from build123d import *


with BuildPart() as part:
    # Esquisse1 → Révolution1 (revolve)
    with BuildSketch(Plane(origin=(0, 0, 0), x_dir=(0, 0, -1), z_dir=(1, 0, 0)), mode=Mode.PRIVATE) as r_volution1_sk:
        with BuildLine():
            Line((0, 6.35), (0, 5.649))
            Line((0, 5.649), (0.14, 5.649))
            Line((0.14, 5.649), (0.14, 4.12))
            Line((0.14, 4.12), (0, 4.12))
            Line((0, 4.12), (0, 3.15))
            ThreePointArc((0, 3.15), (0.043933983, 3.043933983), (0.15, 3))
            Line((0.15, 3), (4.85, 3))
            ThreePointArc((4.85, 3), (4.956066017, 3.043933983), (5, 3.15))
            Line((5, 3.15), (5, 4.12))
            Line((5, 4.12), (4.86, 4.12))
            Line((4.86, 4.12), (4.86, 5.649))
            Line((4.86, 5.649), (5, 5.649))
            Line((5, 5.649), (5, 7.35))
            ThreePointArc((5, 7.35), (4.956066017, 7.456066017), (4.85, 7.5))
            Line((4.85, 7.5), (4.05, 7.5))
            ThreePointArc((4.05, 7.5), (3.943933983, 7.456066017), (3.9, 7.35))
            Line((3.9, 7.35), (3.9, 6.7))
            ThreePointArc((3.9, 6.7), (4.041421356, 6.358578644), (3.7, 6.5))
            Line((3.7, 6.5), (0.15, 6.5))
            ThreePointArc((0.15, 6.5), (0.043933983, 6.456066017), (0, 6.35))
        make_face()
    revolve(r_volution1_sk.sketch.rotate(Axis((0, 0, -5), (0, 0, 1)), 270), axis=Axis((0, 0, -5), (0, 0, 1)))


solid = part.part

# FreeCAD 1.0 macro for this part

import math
import FreeCAD as App
import Part
import Sketcher

doc = App.newDocument("Part")
params = doc.addObject("Spreadsheet::Sheet", "Params")
for row, (alias, value) in enumerate([
    ("sketch1_radius", "0.2 mm"),
    ("sketch1_radius2", "0.15 mm"),
    ("sketch1_height", "4.7 mm"),
    ("sketch1_height2", "0.8 mm"),
    ("sketch1_width", "0.97 mm"),
    ("revolution_angle", "360 deg"),
], start=1):
    params.set(f"A{row}", alias)
    params.set(f"B{row}", "=" + value)
    params.setAlias(f"B{row}", alias)

body = doc.addObject("PartDesign::Body", "Body")

# Sketch on YZ plane
sketch1 = doc.addObject("Sketcher::SketchObject", "Sketch")
body.addObject(sketch1)
sketch1.AttachmentSupport = (doc.YZ_Plane, [""])
sketch1.MapMode = "FlatFace"
sketch1.addGeometry(Part.LineSegment(App.Vector(6.35, 0, 0), App.Vector(5.65, 0, 0)), False)
sketch1.addGeometry(Part.LineSegment(App.Vector(5.65, 0, 0), App.Vector(5.65, -0.14, 0)), False)
sketch1.addGeometry(Part.LineSegment(App.Vector(5.65, -0.14, 0), App.Vector(4.12, -0.14, 0)), False)
sketch1.addGeometry(Part.LineSegment(App.Vector(4.12, -0.14, 0), App.Vector(4.12, 0, 0)), False)
sketch1.addGeometry(Part.LineSegment(App.Vector(4.12, 0, 0), App.Vector(3.15, 0, 0)), False)
sketch1.addGeometry(Part.ArcOfCircle(Part.Circle(App.Vector(3.15, -0.15, 0), App.Vector(0, 0, 1), 0.15), math.radians(90), math.radians(180)), False)
sketch1.addGeometry(Part.LineSegment(App.Vector(3, -0.15, 0), App.Vector(3, -4.85, 0)), False)
sketch1.addGeometry(Part.ArcOfCircle(Part.Circle(App.Vector(3.15, -4.85, 0), App.Vector(0, 0, 1), 0.15), math.radians(-180), math.radians(-90)), False)
sketch1.addGeometry(Part.LineSegment(App.Vector(3.15, -5, 0), App.Vector(4.12, -5, 0)), False)
sketch1.addGeometry(Part.LineSegment(App.Vector(4.12, -5, 0), App.Vector(4.12, -4.86, 0)), False)
sketch1.addGeometry(Part.LineSegment(App.Vector(4.12, -4.86, 0), App.Vector(5.65, -4.86, 0)), False)
sketch1.addGeometry(Part.LineSegment(App.Vector(5.65, -4.86, 0), App.Vector(5.65, -5, 0)), False)
sketch1.addGeometry(Part.LineSegment(App.Vector(5.65, -5, 0), App.Vector(7.35, -5, 0)), False)
sketch1.addGeometry(Part.ArcOfCircle(Part.Circle(App.Vector(7.35, -4.85, 0), App.Vector(0, 0, 1), 0.15), math.radians(-90), math.radians(0)), False)
sketch1.addGeometry(Part.LineSegment(App.Vector(7.5, -4.85, 0), App.Vector(7.5, -4.05, 0)), False)
sketch1.addGeometry(Part.ArcOfCircle(Part.Circle(App.Vector(7.35, -4.05, 0), App.Vector(0, 0, 1), 0.15), math.radians(0), math.radians(90)), False)
sketch1.addGeometry(Part.LineSegment(App.Vector(7.35, -3.9, 0), App.Vector(6.7, -3.9, 0)), False)
sketch1.addGeometry(Part.ArcOfCircle(Part.Circle(App.Vector(6.5, -3.9, 0), App.Vector(0, 0, 1), 0.2), math.radians(90), math.radians(360)), False)
sketch1.addGeometry(Part.LineSegment(App.Vector(6.5, -3.7, 0), App.Vector(6.5, -0.15, 0)), False)
sketch1.addGeometry(Part.ArcOfCircle(Part.Circle(App.Vector(6.35, -0.15, 0), App.Vector(0, 0, 1), 0.15), math.radians(0), math.radians(90)), False)
sketch1.addConstraint(Sketcher.Constraint("Coincident", 0, 2, 1, 1))
sketch1.addConstraint(Sketcher.Constraint("Coincident", 1, 2, 2, 1))
sketch1.addConstraint(Sketcher.Constraint("Coincident", 2, 2, 3, 1))
sketch1.addConstraint(Sketcher.Constraint("Coincident", 3, 2, 4, 1))
sketch1.addConstraint(Sketcher.Constraint("Tangent", 4, 2, 5, 1))
sketch1.addConstraint(Sketcher.Constraint("Tangent", 5, 2, 6, 1))
sketch1.addConstraint(Sketcher.Constraint("Tangent", 6, 2, 7, 1))
sketch1.addConstraint(Sketcher.Constraint("Tangent", 7, 2, 8, 1))
sketch1.addConstraint(Sketcher.Constraint("Coincident", 8, 2, 9, 1))
sketch1.addConstraint(Sketcher.Constraint("Coincident", 9, 2, 10, 1))
sketch1.addConstraint(Sketcher.Constraint("Coincident", 10, 2, 11, 1))
sketch1.addConstraint(Sketcher.Constraint("Coincident", 11, 2, 12, 1))
sketch1.addConstraint(Sketcher.Constraint("Tangent", 12, 2, 13, 1))
sketch1.addConstraint(Sketcher.Constraint("Tangent", 13, 2, 14, 1))
sketch1.addConstraint(Sketcher.Constraint("Tangent", 14, 2, 15, 1))
sketch1.addConstraint(Sketcher.Constraint("Tangent", 15, 2, 16, 1))
sketch1.addConstraint(Sketcher.Constraint("Coincident", 16, 2, 17, 2))
sketch1.addConstraint(Sketcher.Constraint("Coincident", 17, 1, 18, 1))
sketch1.addConstraint(Sketcher.Constraint("Tangent", 18, 2, 19, 1))
sketch1.addConstraint(Sketcher.Constraint("Tangent", 19, 2, 0, 1))
sketch1.addConstraint(Sketcher.Constraint("Horizontal", 0))
sketch1.addConstraint(Sketcher.Constraint("Vertical", 1))
sketch1.addConstraint(Sketcher.Constraint("Horizontal", 2))
sketch1.addConstraint(Sketcher.Constraint("Vertical", 3))
sketch1.addConstraint(Sketcher.Constraint("Horizontal", 4))
sketch1.addConstraint(Sketcher.Constraint("Vertical", 6))
sketch1.addConstraint(Sketcher.Constraint("Horizontal", 8))
sketch1.addConstraint(Sketcher.Constraint("Vertical", 9))
sketch1.addConstraint(Sketcher.Constraint("Horizontal", 10))
sketch1.addConstraint(Sketcher.Constraint("Vertical", 11))
sketch1.addConstraint(Sketcher.Constraint("Horizontal", 12))
sketch1.addConstraint(Sketcher.Constraint("Vertical", 14))
sketch1.addConstraint(Sketcher.Constraint("Horizontal", 16))
sketch1.addConstraint(Sketcher.Constraint("Vertical", 18))
sketch1.addConstraint(Sketcher.Constraint("Equal", 5, 7))
sketch1.addConstraint(Sketcher.Constraint("Equal", 7, 13))
sketch1.addConstraint(Sketcher.Constraint("Equal", 13, 15))
sketch1.addConstraint(Sketcher.Constraint("Equal", 15, 19))
sketch1.addConstraint(Sketcher.Constraint("PointOnObject", 0, 2, -1))
sketch1.addConstraint(Sketcher.Constraint("PointOnObject", 3, 2, -1))
sketch1.addConstraint(Sketcher.Constraint("Horizontal", 7, 3, 13, 3))
sketch1.addConstraint(Sketcher.Constraint("Horizontal", 17, 3, 15, 2))
sketch1.addConstraint(Sketcher.Constraint("Vertical", 3, 2, 8, 2))
sketch1.addConstraint(Sketcher.Constraint("Vertical", 1, 2, 10, 2))
sketch1.addConstraint(Sketcher.Constraint("Equal", 3, 9))
sketch1.addConstraint(Sketcher.Constraint("Radius", 17, 0.2))
sketch1.addConstraint(Sketcher.Constraint("Radius", 5, 0.15))
sketch1.addConstraint(Sketcher.Constraint("DistanceY", 6, 2, 6, 1, 4.7))
sketch1.addConstraint(Sketcher.Constraint("DistanceY", 14, 1, 14, 2, 0.8))
sketch1.addConstraint(Sketcher.Constraint("DistanceX", -1, 1, 5, 2, 3.0))
sketch1.addConstraint(Sketcher.Constraint("DistanceX", 19, 3, 15, 3, 1.0))
sketch1.addConstraint(Sketcher.Constraint("DistanceX", 17, 3, 13, 2, 1.0))
sketch1.addConstraint(Sketcher.Constraint("DistanceX", 4, 2, 4, 1, 0.97))
sketch1.addConstraint(Sketcher.Constraint("DistanceY", 1, 2, 1, 1, 0.14))
sketch1.addConstraint(Sketcher.Constraint("DistanceX", -1, 1, 17, 3, 6.5))
sketch1.addConstraint(Sketcher.Constraint("DistanceX", 0, 2, 0, 1, 0.701))
sketch1.setExpression("Constraints[45]", "Params.sketch1_radius")
sketch1.setExpression("Constraints[46]", "Params.sketch1_radius2")
sketch1.setExpression("Constraints[47]", "Params.sketch1_height")
sketch1.setExpression("Constraints[48]", "Params.sketch1_height2")
sketch1.setExpression("Constraints[52]", "Params.sketch1_width")
revolution = doc.addObject("PartDesign::Revolution", "Revolution")
body.addObject(revolution)
revolution.Profile = sketch1
revolution.ReferenceAxis = (sketch1, ["V_Axis"])
revolution.setExpression("Angle", "Params.revolution_angle")

doc.recompute()
